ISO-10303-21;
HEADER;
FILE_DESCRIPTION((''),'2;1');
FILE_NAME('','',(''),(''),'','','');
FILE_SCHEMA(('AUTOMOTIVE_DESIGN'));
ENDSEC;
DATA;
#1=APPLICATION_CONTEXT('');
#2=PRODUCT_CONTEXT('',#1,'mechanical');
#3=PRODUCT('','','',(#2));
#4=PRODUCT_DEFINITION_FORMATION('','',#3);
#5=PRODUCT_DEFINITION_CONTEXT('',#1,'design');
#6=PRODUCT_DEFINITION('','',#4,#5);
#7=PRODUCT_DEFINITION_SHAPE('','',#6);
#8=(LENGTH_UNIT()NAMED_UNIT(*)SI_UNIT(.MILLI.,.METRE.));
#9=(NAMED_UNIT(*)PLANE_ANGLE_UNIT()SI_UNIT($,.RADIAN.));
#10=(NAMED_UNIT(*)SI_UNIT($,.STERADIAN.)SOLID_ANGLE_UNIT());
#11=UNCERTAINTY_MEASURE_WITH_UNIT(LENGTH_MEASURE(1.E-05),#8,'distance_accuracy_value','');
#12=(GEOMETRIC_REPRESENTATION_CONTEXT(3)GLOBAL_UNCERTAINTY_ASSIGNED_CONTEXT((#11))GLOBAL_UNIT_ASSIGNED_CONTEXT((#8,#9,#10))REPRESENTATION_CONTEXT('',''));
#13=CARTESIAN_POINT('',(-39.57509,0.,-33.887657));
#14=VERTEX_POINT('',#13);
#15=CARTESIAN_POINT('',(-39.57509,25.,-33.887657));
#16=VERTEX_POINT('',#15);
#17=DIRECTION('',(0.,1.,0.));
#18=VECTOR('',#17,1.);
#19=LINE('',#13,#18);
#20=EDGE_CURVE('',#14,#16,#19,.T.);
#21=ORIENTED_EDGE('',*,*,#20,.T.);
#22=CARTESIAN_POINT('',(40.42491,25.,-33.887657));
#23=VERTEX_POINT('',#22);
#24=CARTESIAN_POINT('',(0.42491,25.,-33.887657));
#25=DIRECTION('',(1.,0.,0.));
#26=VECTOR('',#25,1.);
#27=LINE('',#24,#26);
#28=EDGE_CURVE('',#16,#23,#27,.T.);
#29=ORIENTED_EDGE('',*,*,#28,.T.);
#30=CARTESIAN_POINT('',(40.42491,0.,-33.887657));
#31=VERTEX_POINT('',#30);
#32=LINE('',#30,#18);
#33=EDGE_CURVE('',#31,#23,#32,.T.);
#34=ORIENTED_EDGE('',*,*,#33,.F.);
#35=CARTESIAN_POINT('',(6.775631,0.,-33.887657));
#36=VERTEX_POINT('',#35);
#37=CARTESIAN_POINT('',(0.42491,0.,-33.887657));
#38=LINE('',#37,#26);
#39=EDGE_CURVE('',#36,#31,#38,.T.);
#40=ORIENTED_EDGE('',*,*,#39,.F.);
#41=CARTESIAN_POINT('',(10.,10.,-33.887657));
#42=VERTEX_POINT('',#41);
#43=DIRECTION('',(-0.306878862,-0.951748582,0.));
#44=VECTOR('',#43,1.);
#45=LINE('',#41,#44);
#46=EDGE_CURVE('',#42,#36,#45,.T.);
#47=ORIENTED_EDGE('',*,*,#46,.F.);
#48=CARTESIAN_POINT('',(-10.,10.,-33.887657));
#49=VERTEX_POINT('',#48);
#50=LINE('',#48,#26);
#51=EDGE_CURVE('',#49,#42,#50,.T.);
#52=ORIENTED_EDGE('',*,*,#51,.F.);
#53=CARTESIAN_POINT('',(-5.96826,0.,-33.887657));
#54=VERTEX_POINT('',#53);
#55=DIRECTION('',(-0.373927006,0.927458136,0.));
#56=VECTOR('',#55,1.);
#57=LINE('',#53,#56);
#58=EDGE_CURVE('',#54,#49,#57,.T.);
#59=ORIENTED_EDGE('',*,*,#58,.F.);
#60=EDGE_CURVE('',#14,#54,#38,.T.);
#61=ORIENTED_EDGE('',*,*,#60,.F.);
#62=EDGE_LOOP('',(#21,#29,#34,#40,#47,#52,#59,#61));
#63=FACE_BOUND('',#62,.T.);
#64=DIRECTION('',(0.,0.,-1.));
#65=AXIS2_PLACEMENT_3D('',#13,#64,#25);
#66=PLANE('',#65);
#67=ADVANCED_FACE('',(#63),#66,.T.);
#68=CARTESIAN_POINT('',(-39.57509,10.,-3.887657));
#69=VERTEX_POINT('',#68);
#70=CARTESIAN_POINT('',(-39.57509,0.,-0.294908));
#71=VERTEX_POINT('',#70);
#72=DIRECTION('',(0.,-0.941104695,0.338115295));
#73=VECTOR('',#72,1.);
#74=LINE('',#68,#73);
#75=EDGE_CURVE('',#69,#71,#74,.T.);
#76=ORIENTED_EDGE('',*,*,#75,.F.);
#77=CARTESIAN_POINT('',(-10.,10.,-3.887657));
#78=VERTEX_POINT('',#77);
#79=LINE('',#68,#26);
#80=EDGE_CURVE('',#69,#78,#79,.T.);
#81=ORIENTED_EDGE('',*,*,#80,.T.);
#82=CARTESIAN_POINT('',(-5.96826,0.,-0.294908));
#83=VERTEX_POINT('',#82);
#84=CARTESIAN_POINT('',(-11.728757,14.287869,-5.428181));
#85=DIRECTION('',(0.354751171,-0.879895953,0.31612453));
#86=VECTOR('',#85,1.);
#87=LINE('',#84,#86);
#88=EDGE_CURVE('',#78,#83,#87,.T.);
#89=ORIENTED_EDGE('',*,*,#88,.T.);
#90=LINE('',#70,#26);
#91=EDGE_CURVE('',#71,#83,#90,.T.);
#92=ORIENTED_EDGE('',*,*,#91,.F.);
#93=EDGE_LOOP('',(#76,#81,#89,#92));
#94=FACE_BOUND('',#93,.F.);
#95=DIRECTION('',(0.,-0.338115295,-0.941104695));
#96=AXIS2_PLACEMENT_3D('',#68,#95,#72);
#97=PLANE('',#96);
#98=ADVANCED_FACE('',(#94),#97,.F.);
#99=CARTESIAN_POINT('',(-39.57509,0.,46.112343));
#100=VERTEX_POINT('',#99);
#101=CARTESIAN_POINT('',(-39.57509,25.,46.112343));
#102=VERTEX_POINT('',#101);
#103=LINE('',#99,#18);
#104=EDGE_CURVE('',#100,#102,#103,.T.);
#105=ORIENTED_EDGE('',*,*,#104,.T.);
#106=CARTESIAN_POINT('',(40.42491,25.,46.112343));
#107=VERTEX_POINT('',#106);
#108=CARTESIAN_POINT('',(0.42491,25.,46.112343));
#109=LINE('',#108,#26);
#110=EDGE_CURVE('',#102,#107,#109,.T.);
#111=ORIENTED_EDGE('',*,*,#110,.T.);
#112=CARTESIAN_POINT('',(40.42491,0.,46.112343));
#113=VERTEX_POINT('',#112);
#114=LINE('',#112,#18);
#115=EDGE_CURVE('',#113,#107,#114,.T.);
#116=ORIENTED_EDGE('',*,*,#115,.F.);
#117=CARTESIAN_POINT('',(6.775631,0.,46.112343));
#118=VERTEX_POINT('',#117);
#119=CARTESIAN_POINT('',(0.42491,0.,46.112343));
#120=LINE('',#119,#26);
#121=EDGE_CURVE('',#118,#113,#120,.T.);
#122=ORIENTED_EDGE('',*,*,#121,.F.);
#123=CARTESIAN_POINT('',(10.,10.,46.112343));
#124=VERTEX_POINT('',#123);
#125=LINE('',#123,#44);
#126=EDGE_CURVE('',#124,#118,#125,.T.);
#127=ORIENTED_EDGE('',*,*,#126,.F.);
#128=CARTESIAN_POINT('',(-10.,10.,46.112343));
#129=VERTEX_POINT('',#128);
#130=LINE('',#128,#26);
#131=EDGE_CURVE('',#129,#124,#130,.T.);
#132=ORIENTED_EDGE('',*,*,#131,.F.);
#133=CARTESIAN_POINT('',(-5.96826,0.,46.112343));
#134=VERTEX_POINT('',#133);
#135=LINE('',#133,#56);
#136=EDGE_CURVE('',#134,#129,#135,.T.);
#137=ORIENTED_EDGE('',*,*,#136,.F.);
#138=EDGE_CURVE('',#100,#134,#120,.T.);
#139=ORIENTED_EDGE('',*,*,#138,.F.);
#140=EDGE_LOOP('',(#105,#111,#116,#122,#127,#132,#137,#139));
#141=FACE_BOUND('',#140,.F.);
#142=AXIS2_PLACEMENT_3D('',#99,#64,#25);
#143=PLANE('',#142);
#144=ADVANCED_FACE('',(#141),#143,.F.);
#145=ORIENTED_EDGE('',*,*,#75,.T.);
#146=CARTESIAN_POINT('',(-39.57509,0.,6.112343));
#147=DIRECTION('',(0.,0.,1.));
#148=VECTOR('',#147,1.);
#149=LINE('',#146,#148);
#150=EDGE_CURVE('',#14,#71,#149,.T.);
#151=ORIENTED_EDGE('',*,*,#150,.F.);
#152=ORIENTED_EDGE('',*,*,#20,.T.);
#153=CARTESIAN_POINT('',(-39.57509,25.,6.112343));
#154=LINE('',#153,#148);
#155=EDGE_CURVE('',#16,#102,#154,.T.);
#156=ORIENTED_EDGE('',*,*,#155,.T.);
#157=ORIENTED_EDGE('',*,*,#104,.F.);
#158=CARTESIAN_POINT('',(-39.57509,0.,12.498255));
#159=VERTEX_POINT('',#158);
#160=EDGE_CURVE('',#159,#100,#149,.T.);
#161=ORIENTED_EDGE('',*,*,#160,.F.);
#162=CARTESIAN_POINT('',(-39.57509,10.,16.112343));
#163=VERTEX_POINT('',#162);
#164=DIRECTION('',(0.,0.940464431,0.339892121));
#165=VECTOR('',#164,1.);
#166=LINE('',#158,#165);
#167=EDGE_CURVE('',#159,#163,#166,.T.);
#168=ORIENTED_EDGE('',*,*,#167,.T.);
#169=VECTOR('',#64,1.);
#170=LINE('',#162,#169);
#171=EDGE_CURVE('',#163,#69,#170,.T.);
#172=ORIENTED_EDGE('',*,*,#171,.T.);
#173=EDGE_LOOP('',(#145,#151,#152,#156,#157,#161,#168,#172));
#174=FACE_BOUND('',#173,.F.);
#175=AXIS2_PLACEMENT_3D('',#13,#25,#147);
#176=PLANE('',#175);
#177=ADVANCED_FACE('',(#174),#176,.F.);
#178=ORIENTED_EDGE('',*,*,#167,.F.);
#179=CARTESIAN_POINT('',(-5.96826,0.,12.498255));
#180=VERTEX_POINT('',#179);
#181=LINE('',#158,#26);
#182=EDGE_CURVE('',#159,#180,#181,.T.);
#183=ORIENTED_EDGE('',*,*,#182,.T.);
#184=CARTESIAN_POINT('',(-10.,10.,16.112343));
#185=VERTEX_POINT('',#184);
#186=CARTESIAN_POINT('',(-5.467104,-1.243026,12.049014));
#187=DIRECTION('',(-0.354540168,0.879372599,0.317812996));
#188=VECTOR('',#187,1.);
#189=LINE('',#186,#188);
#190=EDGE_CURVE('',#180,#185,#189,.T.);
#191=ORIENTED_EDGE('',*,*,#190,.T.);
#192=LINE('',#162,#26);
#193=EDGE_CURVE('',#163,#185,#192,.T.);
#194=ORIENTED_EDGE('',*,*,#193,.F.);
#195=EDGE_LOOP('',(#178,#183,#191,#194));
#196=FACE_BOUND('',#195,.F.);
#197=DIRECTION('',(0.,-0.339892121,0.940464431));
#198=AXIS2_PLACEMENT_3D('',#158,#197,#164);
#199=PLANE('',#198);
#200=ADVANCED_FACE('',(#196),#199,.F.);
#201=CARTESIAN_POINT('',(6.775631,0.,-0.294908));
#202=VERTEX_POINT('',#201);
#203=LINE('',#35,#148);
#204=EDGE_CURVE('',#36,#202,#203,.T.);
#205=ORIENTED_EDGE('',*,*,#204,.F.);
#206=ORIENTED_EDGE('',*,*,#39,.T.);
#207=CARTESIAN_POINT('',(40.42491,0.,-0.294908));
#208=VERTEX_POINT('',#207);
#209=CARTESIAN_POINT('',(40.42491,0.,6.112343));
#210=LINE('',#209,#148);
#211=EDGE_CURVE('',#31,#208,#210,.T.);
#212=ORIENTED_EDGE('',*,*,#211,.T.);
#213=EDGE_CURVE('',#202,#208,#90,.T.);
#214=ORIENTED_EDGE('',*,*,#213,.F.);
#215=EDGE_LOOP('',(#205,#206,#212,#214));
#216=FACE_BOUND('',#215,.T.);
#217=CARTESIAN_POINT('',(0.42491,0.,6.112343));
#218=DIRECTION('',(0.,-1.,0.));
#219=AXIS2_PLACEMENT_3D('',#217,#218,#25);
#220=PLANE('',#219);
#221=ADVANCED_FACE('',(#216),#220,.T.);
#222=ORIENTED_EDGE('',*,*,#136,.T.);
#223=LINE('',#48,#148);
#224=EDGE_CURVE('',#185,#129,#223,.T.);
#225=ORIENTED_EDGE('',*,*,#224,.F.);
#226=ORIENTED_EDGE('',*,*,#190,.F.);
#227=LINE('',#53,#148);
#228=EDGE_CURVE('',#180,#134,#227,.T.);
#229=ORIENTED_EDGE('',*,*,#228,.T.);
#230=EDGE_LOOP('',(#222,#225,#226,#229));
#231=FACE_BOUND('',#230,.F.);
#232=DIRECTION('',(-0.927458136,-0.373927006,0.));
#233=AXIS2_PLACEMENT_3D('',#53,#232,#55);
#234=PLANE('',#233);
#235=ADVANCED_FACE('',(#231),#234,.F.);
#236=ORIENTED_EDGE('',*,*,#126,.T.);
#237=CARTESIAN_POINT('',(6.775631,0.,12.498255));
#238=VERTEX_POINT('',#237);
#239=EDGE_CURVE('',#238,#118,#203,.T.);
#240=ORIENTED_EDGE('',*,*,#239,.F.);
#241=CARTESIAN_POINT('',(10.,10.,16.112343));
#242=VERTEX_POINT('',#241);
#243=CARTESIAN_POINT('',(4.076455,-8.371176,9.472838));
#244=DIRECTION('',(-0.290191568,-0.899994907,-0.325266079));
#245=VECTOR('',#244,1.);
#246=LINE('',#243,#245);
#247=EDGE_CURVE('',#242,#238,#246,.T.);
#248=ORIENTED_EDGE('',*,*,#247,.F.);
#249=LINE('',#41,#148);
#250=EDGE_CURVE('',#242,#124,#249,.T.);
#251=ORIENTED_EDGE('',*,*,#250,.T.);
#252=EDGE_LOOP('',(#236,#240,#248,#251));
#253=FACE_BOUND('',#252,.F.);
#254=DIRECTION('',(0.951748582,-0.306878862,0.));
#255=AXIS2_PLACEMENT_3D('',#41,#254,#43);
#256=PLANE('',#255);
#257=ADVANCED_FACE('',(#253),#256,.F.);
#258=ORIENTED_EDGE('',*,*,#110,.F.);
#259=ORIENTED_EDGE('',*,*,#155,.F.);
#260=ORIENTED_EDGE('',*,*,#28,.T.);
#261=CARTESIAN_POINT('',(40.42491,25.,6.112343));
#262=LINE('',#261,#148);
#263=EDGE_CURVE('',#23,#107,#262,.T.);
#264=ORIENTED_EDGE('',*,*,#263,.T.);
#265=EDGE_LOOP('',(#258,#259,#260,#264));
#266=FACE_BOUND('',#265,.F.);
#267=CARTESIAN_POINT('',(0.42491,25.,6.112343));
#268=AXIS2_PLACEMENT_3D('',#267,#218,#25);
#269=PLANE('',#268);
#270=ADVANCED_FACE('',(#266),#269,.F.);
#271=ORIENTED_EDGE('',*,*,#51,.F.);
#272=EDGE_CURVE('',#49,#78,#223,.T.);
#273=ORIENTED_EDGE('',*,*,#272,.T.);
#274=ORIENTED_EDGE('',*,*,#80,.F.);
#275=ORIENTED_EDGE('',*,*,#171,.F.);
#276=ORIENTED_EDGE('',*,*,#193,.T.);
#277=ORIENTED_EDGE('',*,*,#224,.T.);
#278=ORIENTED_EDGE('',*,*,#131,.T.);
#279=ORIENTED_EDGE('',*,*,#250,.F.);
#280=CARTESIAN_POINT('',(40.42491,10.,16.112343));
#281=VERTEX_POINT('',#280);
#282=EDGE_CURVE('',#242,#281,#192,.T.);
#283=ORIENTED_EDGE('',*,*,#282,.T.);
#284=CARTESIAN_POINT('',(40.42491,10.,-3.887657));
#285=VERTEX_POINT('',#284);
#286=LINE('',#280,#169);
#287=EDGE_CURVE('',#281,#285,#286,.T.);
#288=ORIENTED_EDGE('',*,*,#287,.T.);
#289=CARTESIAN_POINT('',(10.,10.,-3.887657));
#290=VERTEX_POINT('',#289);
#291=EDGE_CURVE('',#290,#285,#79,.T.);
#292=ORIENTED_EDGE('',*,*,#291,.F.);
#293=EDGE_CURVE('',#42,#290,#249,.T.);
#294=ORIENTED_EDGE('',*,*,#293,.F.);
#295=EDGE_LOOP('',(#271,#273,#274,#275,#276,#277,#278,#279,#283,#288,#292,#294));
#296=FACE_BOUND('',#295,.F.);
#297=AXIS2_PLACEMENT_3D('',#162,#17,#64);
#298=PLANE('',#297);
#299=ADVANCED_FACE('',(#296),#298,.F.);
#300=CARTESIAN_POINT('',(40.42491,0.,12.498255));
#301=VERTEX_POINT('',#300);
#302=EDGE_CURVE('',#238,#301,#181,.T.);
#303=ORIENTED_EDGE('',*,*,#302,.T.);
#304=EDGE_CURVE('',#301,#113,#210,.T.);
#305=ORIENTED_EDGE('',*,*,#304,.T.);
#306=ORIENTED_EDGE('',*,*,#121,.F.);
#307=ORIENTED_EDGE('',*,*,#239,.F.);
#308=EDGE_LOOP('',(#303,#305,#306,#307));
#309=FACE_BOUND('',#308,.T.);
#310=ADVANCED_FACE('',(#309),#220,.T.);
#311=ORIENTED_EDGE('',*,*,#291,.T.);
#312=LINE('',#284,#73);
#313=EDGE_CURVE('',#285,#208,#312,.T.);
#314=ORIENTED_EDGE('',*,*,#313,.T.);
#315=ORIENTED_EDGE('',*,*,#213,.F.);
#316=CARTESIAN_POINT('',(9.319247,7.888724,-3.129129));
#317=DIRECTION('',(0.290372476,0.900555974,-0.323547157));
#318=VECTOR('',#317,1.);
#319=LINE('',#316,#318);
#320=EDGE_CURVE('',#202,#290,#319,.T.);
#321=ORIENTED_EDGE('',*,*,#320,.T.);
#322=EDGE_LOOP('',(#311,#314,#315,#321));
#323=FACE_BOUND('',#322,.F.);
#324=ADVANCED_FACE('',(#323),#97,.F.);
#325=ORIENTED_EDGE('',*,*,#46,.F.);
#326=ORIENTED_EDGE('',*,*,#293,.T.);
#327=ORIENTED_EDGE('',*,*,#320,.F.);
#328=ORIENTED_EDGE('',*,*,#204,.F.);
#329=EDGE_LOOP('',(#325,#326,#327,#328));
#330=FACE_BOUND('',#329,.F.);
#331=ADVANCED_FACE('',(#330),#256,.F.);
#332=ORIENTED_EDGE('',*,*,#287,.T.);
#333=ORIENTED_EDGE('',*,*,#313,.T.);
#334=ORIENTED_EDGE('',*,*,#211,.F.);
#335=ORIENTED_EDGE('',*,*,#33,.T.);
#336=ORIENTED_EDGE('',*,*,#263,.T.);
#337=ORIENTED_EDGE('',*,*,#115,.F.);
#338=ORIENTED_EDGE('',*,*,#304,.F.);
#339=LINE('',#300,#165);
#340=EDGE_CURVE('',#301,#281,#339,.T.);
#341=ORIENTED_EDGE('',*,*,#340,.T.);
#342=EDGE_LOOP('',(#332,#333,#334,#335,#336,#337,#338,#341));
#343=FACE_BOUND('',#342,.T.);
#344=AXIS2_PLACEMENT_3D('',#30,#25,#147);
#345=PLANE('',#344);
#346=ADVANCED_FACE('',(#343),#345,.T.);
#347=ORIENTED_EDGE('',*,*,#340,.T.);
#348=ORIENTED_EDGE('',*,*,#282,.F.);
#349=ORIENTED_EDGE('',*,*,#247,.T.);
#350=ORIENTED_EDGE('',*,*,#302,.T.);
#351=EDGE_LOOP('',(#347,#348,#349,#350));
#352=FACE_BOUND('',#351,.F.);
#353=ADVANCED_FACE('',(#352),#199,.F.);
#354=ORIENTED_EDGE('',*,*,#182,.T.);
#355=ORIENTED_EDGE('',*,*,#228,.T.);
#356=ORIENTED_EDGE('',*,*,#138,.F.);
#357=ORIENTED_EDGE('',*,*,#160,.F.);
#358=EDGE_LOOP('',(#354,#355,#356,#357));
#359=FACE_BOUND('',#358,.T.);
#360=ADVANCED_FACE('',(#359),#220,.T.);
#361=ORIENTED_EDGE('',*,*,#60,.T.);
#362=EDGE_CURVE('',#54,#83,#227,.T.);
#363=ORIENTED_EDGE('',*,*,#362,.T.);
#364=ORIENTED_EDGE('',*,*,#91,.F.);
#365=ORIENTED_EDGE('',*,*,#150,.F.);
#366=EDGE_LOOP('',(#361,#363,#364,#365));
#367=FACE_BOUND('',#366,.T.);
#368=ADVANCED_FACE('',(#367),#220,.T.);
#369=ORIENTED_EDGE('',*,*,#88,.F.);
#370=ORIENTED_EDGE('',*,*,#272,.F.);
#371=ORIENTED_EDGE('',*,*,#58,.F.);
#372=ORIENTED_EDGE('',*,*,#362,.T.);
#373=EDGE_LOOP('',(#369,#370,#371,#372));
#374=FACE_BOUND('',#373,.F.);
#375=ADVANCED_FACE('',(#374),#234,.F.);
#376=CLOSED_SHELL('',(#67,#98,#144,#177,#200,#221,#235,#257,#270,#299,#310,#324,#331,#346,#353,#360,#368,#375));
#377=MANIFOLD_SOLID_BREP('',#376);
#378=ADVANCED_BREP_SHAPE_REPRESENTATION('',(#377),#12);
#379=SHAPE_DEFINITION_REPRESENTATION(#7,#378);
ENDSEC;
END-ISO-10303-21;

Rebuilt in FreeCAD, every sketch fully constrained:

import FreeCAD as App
import Part
import Sketcher


def add_polygon(sketch, points):
    """Adds a closed chain of lines whose ends are joined by coincident constraints."""
    first, n = sketch.GeometryCount, len(points)
    for a, b in zip(points, points[1:] + points[:1]):
        sketch.addGeometry(Part.LineSegment(App.Vector(*a, 0), App.Vector(*b, 0)), False)
    for i in range(n):
        sketch.addConstraint(Sketcher.Constraint("Coincident", first + i, 2, first + (i + 1) % n, 1))

doc = App.newDocument("Part")
body = doc.addObject("PartDesign::Body", "Body")

# Sketch on XZ plane
sketch1 = body.newObject("Sketcher::SketchObject", "Sketch")
sketch1.AttachmentSupport = (doc.getObject("XZ_Plane"), [""])
sketch1.MapMode = "FlatFace"
add_polygon(sketch1, [(-39.57509, 46.112343), (-39.57509, -33.887657), (40.42491, -33.887657), (40.42491, 46.112343)])  # lines 0-3
sketch1.addConstraint([
    Sketcher.Constraint("Vertical", 0),
    Sketcher.Constraint("Horizontal", 1),
    Sketcher.Constraint("Vertical", 2),
    Sketcher.Constraint("Horizontal", 3),
    Sketcher.Constraint("Equal", 3, 0),
    Sketcher.Constraint("DistanceX", 1, 1, 1, 2, 80.0),
    Sketcher.Constraint("DistanceX", 0, 2, -1, 1, 39.57509),
    Sketcher.Constraint("DistanceY", 0, 2, -1, 1, 33.887657),
])
pad1 = body.newObject("PartDesign::Pad", "Pad")
pad1.Profile = sketch1
pad1.Length = 25
pad1.Reversed = True

# Sketch on XY plane
sketch2 = body.newObject("Sketcher::SketchObject", "Sketch001")
sketch2.AttachmentSupport = (doc.getObject("XY_Plane"), [""])
sketch2.MapMode = "FlatFace"
sketch2.AttachmentOffset = App.Placement(App.Vector(0, 0, -33.887657), App.Rotation())
add_polygon(sketch2, [(-5.96826, 0), (-10, 10), (10, 10), (6.775631, 0)])  # lines 0-3
sketch2.addConstraint([
    Sketcher.Constraint("Horizontal", 1),
    Sketcher.Constraint("Horizontal", 3),
    Sketcher.Constraint("PointOnObject", 2, 2, -1),
    Sketcher.Constraint("DistanceX", 1, 1, 1, 2, 20.0),
    Sketcher.Constraint("DistanceX", 0, 2, -1, 1, 10.0),
    Sketcher.Constraint("DistanceY", -1, 1, 0, 2, 10.0),
    Sketcher.Constraint("DistanceX", 3, 2, 3, 1, 12.743891),
    Sketcher.Constraint("DistanceX", -1, 1, 2, 2, 6.775631),
])
pocket1 = body.newObject("PartDesign::Pocket", "Pocket")
pocket1.Profile = sketch2
pocket1.Length = 80
pocket1.Reversed = True

# Sketch on YZ plane
sketch3 = body.newObject("Sketcher::SketchObject", "Sketch002")
sketch3.AttachmentSupport = (doc.getObject("YZ_Plane"), [""])
sketch3.MapMode = "FlatFace"
sketch3.AttachmentOffset = App.Placement(App.Vector(0, 0, -39.57509), App.Rotation())
add_polygon(sketch3, [(10, 16.112343), (10, -3.887657), (0, -0.294908), (0, 12.498255)])  # lines 0-3
sketch3.addConstraint([
    Sketcher.Constraint("Vertical", 0),
    Sketcher.Constraint("Vertical", 2),
    Sketcher.Constraint("PointOnObject", 1, 2, -2),
    Sketcher.Constraint("DistanceY", 0, 2, 0, 1, 20.0),
    Sketcher.Constraint("DistanceX", -1, 1, 0, 2, 10.0),
    Sketcher.Constraint("Distance", 1, 10.62581),
    Sketcher.Constraint("DistanceY", 2, 1, 2, 2, 12.793163),
    Sketcher.Constraint("DistanceY", 0, 2, -1, 1, 3.887657),
])
pocket2 = body.newObject("PartDesign::Pocket", "Pocket001")
pocket2.Profile = sketch3
pocket2.Length = 80
pocket2.Reversed = True

doc.recompute()
